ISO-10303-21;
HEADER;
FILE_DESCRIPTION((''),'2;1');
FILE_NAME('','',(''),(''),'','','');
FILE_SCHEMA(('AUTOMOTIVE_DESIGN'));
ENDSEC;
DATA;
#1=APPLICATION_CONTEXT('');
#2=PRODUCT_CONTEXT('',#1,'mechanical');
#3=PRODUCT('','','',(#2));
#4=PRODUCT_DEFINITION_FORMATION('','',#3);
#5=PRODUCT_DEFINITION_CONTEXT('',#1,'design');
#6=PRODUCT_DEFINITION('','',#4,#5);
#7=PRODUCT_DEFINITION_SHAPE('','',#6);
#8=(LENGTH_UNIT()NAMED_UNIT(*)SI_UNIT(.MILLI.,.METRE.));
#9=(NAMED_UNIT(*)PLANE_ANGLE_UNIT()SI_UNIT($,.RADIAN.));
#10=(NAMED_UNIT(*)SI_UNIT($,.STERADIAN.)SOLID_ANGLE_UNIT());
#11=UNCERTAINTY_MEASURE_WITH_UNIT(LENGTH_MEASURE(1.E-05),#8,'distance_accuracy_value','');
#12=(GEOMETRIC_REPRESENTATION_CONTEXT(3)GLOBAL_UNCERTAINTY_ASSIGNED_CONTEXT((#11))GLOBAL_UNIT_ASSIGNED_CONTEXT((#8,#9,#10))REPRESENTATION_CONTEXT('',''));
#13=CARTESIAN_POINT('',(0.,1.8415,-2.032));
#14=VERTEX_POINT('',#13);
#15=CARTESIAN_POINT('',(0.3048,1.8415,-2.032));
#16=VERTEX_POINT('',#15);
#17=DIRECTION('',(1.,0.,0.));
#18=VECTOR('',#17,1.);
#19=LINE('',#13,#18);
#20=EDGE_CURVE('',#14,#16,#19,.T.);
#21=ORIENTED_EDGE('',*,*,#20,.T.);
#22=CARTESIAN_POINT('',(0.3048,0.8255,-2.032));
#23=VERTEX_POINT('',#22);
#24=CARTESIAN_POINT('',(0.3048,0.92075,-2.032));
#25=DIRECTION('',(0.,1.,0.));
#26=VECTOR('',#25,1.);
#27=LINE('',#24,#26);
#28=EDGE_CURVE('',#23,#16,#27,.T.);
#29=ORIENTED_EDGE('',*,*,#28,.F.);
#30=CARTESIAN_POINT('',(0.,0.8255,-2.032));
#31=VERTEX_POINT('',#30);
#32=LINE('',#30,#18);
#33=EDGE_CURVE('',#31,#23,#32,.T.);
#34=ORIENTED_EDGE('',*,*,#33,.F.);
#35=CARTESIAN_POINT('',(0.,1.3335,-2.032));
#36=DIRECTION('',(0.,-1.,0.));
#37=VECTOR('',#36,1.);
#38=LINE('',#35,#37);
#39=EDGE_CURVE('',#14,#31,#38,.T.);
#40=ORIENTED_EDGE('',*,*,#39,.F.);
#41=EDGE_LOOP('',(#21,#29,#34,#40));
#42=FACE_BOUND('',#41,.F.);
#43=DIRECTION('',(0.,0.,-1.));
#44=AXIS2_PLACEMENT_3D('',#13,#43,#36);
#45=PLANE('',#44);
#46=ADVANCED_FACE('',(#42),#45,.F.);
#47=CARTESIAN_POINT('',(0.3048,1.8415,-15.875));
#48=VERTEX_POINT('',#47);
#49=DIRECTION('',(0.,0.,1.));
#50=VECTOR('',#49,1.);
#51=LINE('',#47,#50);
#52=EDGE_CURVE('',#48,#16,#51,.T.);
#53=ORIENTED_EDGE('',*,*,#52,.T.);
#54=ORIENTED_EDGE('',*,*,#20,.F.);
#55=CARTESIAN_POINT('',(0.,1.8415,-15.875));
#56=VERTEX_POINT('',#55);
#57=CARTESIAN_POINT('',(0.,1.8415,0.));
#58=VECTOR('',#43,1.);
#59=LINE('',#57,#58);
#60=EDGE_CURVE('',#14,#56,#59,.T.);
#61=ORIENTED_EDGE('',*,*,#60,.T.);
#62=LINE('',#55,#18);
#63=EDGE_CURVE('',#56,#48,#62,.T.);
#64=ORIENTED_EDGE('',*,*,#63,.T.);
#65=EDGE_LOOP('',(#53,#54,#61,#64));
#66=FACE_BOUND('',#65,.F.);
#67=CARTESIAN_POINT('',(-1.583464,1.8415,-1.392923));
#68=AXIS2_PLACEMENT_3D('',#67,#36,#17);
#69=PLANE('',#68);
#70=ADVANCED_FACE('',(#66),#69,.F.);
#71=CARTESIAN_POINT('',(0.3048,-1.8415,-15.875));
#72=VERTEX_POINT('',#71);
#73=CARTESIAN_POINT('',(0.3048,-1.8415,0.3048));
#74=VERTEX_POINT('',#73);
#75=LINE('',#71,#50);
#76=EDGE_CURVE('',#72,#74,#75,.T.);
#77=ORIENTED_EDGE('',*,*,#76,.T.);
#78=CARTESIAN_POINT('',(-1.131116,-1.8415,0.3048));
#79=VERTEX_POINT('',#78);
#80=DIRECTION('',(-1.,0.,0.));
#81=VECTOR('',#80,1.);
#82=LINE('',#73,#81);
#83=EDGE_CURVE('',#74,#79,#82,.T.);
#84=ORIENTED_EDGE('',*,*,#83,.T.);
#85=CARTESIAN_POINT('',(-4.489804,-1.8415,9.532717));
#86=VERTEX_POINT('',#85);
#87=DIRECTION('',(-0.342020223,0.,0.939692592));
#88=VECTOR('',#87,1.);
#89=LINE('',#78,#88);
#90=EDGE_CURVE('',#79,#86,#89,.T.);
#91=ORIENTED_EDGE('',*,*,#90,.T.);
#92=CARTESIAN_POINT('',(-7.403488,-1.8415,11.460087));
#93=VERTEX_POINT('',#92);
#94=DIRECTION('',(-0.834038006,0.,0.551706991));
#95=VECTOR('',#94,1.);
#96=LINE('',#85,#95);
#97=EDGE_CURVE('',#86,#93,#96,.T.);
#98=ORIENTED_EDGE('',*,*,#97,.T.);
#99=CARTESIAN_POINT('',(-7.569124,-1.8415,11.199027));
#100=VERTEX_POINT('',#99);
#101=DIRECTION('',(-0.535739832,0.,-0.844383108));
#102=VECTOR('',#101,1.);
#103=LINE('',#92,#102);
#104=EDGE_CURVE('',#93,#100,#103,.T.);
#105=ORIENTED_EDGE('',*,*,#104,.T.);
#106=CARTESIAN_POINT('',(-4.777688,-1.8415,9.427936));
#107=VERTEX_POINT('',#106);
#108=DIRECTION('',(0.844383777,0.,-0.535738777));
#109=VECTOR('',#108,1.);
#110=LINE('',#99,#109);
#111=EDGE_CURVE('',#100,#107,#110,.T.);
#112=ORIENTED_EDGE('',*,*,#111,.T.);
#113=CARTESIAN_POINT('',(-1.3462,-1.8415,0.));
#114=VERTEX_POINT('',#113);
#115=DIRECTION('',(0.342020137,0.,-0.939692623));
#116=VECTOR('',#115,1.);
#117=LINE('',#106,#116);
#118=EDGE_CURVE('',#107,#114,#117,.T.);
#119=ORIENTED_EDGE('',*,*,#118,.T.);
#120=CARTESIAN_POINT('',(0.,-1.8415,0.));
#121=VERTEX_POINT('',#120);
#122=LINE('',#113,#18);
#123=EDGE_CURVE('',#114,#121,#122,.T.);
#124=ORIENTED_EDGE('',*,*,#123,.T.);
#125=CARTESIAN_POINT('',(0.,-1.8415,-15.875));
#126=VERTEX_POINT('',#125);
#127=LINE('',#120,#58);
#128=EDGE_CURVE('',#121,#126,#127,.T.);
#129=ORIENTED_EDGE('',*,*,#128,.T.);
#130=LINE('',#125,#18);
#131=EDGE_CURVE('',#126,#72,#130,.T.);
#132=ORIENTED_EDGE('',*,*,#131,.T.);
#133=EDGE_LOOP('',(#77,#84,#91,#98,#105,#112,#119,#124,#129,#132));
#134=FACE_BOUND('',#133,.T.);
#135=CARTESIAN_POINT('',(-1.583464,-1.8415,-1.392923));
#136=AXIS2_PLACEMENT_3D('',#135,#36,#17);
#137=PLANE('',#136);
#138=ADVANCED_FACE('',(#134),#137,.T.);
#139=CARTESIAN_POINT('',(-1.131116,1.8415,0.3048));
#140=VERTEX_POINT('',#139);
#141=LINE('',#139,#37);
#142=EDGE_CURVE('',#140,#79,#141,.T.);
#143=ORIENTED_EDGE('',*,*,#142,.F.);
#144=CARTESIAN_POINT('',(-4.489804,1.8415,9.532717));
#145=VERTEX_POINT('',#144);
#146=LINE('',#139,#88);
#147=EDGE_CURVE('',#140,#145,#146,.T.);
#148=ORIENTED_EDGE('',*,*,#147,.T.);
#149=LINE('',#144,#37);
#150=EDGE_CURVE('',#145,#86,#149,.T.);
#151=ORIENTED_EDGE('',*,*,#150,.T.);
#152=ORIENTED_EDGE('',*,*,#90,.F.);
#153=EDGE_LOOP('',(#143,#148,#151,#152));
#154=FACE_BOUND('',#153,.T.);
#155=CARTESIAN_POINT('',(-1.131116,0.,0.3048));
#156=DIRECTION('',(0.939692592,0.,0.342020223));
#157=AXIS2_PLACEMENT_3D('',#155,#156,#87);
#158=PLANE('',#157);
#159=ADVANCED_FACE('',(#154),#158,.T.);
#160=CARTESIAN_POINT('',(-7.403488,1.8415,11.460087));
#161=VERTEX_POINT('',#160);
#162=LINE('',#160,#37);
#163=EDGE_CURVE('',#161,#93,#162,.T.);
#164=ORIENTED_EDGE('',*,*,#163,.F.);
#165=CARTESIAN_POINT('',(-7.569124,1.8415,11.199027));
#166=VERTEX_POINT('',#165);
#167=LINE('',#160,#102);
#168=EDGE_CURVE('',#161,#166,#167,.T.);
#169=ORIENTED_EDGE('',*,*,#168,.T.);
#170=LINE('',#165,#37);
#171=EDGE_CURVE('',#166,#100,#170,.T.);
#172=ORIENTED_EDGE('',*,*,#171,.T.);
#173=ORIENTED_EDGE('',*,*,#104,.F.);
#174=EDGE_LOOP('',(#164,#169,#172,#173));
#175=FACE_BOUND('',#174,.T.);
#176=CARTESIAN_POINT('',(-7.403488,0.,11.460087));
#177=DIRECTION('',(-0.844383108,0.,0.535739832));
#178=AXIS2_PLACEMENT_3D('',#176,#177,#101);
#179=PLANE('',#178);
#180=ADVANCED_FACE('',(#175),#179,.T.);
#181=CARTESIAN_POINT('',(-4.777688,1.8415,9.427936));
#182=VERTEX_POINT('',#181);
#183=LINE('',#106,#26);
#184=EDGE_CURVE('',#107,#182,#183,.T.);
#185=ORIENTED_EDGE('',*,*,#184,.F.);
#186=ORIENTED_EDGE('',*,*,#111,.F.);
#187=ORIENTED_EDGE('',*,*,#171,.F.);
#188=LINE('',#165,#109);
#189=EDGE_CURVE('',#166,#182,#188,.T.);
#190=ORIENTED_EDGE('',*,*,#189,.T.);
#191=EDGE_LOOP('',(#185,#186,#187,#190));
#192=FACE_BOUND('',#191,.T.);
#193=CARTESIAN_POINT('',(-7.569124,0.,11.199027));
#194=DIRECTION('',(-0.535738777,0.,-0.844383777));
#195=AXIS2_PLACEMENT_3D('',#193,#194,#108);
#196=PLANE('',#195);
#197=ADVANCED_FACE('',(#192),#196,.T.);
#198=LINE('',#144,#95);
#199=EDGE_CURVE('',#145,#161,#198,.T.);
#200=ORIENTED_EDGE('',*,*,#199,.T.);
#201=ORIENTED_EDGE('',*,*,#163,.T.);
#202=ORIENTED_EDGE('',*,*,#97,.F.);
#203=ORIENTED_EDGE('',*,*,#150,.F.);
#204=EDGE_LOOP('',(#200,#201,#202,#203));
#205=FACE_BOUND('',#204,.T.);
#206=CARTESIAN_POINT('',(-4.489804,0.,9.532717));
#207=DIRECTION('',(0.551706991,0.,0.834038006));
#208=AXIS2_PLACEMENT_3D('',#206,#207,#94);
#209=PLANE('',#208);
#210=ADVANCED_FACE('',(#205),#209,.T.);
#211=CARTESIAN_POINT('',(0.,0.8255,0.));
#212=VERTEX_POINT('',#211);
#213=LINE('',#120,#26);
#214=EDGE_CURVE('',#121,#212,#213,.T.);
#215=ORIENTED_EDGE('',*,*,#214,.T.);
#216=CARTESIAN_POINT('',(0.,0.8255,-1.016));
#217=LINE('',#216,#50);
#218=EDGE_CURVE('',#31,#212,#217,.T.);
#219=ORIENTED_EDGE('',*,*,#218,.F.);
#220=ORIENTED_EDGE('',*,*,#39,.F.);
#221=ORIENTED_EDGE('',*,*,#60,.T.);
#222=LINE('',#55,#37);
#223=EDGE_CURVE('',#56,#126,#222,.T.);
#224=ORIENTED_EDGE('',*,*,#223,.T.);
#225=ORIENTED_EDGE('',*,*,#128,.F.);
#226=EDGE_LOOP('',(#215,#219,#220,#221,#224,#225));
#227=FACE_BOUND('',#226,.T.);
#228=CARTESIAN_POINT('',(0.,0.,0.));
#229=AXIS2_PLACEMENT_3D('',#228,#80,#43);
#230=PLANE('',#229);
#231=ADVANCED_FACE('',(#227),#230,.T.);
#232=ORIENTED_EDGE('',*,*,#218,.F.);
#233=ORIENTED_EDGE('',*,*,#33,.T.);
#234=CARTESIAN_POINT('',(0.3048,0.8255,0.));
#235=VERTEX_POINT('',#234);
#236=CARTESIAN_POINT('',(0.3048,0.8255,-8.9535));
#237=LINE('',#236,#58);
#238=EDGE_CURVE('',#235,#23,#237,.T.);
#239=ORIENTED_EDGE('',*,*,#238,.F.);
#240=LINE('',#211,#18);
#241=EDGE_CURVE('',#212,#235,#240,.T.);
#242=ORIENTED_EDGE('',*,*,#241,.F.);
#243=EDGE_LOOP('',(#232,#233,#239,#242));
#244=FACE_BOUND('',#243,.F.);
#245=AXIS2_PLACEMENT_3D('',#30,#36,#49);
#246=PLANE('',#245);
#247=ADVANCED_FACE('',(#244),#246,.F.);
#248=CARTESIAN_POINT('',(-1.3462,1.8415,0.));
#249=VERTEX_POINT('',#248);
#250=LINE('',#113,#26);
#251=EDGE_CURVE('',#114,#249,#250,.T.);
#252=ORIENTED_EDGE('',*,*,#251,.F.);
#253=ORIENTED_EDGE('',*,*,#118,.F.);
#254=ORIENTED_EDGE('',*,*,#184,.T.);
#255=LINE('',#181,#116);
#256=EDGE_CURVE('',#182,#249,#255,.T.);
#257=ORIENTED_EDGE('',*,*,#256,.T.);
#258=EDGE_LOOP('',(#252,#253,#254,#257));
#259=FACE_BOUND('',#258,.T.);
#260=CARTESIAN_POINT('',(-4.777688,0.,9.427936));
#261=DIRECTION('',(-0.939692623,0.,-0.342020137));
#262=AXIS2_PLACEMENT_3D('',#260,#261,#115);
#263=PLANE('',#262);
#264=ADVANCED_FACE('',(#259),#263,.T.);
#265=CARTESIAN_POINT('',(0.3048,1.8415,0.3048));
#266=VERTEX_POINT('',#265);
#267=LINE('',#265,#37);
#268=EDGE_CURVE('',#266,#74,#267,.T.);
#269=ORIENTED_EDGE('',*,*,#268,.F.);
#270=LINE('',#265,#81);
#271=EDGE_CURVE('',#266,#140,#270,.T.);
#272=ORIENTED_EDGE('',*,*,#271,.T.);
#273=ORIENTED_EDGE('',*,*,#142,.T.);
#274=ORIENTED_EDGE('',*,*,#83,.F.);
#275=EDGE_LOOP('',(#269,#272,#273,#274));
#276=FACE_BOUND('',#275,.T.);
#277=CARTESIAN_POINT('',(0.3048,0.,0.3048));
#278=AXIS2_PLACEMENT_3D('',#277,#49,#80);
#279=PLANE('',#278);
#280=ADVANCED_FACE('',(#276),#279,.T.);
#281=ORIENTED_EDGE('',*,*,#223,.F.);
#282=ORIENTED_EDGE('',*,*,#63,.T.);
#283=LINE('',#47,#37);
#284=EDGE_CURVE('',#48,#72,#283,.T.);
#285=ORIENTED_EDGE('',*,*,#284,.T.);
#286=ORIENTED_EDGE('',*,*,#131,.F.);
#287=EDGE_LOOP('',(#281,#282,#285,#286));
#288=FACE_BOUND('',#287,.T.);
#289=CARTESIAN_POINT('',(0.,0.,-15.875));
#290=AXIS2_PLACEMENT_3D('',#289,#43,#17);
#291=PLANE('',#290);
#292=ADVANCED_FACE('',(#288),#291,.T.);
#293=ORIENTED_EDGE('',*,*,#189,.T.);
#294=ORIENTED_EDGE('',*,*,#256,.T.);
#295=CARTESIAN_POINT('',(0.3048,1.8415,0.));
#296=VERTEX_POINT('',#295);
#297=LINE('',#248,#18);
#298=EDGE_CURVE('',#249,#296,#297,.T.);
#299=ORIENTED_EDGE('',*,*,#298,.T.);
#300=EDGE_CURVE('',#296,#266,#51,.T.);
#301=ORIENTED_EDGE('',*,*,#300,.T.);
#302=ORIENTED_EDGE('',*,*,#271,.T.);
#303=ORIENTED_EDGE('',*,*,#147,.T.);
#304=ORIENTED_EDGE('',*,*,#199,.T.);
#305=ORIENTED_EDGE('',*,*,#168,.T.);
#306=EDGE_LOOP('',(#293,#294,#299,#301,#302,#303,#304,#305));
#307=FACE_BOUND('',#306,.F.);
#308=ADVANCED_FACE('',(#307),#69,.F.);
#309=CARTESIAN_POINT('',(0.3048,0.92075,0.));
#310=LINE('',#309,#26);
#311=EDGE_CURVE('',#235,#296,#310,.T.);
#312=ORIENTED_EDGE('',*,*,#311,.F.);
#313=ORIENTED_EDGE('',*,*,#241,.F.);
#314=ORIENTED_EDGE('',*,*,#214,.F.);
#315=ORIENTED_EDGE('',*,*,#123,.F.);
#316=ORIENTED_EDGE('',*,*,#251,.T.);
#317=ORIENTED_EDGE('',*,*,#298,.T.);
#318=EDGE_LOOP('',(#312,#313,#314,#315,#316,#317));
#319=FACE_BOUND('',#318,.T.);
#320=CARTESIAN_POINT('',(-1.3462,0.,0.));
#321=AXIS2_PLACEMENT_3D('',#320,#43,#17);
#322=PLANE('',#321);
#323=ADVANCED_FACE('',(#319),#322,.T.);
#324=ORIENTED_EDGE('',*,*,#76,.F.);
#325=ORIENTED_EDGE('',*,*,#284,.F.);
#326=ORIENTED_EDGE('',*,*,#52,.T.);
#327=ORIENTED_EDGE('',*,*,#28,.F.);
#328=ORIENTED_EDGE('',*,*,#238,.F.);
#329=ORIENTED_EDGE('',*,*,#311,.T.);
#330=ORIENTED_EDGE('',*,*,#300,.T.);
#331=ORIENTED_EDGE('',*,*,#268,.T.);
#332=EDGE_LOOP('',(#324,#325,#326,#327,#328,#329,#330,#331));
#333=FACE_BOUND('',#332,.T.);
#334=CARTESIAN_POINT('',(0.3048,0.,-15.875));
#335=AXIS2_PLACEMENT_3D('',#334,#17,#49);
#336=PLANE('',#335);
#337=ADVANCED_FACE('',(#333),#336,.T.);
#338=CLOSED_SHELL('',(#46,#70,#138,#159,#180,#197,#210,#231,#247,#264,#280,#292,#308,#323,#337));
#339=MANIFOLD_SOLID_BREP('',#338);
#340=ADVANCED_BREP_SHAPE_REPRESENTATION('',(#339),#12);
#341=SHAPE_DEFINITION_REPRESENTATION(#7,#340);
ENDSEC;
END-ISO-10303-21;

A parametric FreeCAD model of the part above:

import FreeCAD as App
import Part
import Sketcher
from FreeCAD import Vector
Q = App.Units.Quantity

doc = App.newDocument("Part")
params = doc.addObject("Spreadsheet::Sheet", "Params")
for row, (alias, value) in enumerate([
    ("sketch1_width", "0.012 in"),
    ("sketch1_width2", "0.053 in"),
    ("sketch1_height", "0.625 in"),
    ("sketch1_height2", "0.637 in"),
    ("sketch1_length", "0.395 in"),
    ("pad1_length", "0.145 in"),
    ("sketch2_width", "0.04 in"),
    ("sketch2_height", "0.08 in"),
    ("pocket1_length", "1 in"),
], start=1):
    params.set(f"A{row}", alias)
    params.set(f"B{row}", "=" + value)
    params.setAlias(f"B{row}", alias)

body = doc.addObject("PartDesign::Body", "Body")

# Sketch on XZ plane
sketch1 = body.newObject("Sketcher::SketchObject", "Sketch")
sketch1.AttachmentSupport = (doc.getObject("XZ_Plane"), [""])
sketch1.MapMode = "FlatFace"
sketch1.addGeometry(Part.LineSegment(Vector(0, 0, 0), Vector(0, -15.88, 0)), False)
sketch1.addGeometry(Part.LineSegment(Vector(0, -15.88, 0), Vector(0.3, -15.88, 0)), False)
sketch1.addGeometry(Part.LineSegment(Vector(0.3, -15.88, 0), Vector(0.3, 0.3, 0)), False)
sketch1.addGeometry(Part.LineSegment(Vector(0.3, 0.3, 0), Vector(-1.13, 0.3, 0)), False)
sketch1.addGeometry(Part.LineSegment(Vector(-1.13, 0.3, 0), Vector(-4.49, 9.53, 0)), False)
sketch1.addGeometry(Part.LineSegment(Vector(-4.49, 9.53, 0), Vector(-7.4, 11.46, 0)), False)
sketch1.addGeometry(Part.LineSegment(Vector(-7.4, 11.46, 0), Vector(-7.57, 11.2, 0)), False)
sketch1.addGeometry(Part.LineSegment(Vector(-7.57, 11.2, 0), Vector(-4.78, 9.43, 0)), False)
sketch1.addGeometry(Part.LineSegment(Vector(-4.78, 9.43, 0), Vector(-1.35, 0, 0)), False)
sketch1.addGeometry(Part.LineSegment(Vector(-1.35, 0, 0), Vector(0, 0, 0)), False)
sketch1.addConstraint(Sketcher.Constraint("Coincident", 0, 2, 1, 1))
sketch1.addConstraint(Sketcher.Constraint("Coincident", 1, 2, 2, 1))
sketch1.addConstraint(Sketcher.Constraint("Coincident", 2, 2, 3, 1))
sketch1.addConstraint(Sketcher.Constraint("Coincident", 3, 2, 4, 1))
sketch1.addConstraint(Sketcher.Constraint("Coincident", 4, 2, 5, 1))
sketch1.addConstraint(Sketcher.Constraint("Coincident", 5, 2, 6, 1))
sketch1.addConstraint(Sketcher.Constraint("Coincident", 6, 2, 7, 1))
sketch1.addConstraint(Sketcher.Constraint("Coincident", 7, 2, 8, 1))
sketch1.addConstraint(Sketcher.Constraint("Coincident", 8, 2, 9, 1))
sketch1.addConstraint(Sketcher.Constraint("Coincident", 9, 2, 0, 1))
sketch1.addConstraint(Sketcher.Constraint("Vertical", 0))
sketch1.addConstraint(Sketcher.Constraint("Horizontal", 1))
sketch1.addConstraint(Sketcher.Constraint("Vertical", 2))
sketch1.addConstraint(Sketcher.Constraint("Horizontal", 3))
sketch1.addConstraint(Sketcher.Constraint("Horizontal", 9))
sketch1.addConstraint(Sketcher.Constraint("Coincident", 9, 2, -1, 1))
sketch1.addConstraint(Sketcher.Constraint("Perpendicular", 6, 7))
sketch1.addConstraint(Sketcher.Constraint("Parallel", 4, 8))
sketch1.addConstraint(Sketcher.Constraint("Angle", 4, Q("110.000005 deg")))
sketch1.addConstraint(Sketcher.Constraint("DistanceX", 1, 1, 1, 2, Q("0.012 in")))
sketch1.addConstraint(Sketcher.Constraint("DistanceX", 9, 1, 9, 2, Q("0.053 in")))
sketch1.addConstraint(Sketcher.Constraint("DistanceY", 0, 2, 0, 1, Q("0.625 in")))
sketch1.addConstraint(Sketcher.Constraint("DistanceY", 2, 1, 2, 2, Q("0.637 in")))
sketch1.addConstraint(Sketcher.Constraint("Distance", 8, Q("0.395 in")))
sketch1.addConstraint(Sketcher.Constraint("DistanceX", 5, 2, 7, 2, Q("2.6258 mm")))
sketch1.addConstraint(Sketcher.Constraint("DistanceX", 3, 2, 3, 1, Q("1.435916 mm")))
sketch1.addConstraint(Sketcher.Constraint("DistanceX", 4, 2, 3, 2, Q("3.358688 mm")))
sketch1.addConstraint(Sketcher.Constraint("DistanceY", 4, 2, 5, 2, Q("1.92737 mm")))
sketch1.addConstraint(Sketcher.Constraint("DistanceY", 6, 2, 5, 2, Q("0.26106 mm")))
sketch1.setExpression("Constraints[19]", "Params.sketch1_width")
sketch1.setExpression("Constraints[20]", "Params.sketch1_width2")
sketch1.setExpression("Constraints[21]", "Params.sketch1_height")
sketch1.setExpression("Constraints[22]", "Params.sketch1_height2")
sketch1.setExpression("Constraints[23]", "Params.sketch1_length")
pad1 = body.newObject("PartDesign::Pad", "Pad")
pad1.Profile = sketch1
pad1.setExpression("Length", "Params.pad1_length")
pad1.Midplane = True

# Sketch on YZ plane
sketch2 = body.newObject("Sketcher::SketchObject", "Sketch001")
sketch2.AttachmentSupport = (doc.getObject("YZ_Plane"), [""])
sketch2.MapMode = "FlatFace"
sketch2.addGeometry(Part.LineSegment(Vector(1.8, 0, 0), Vector(1.8, -2, 0)), False)
sketch2.addGeometry(Part.LineSegment(Vector(1.8, -2, 0), Vector(0.8, -2, 0)), False)
sketch2.addGeometry(Part.LineSegment(Vector(0.8, -2, 0), Vector(0.8, 0, 0)), False)
sketch2.addGeometry(Part.LineSegment(Vector(0.8, 0, 0), Vector(1.8, 0, 0)), False)
sketch2.addConstraint(Sketcher.Constraint("Coincident", 0, 2, 1, 1))
sketch2.addConstraint(Sketcher.Constraint("Coincident", 1, 2, 2, 1))
sketch2.addConstraint(Sketcher.Constraint("Coincident", 2, 2, 3, 1))
sketch2.addConstraint(Sketcher.Constraint("Coincident", 3, 2, 0, 1))
sketch2.addConstraint(Sketcher.Constraint("Vertical", 0))
sketch2.addConstraint(Sketcher.Constraint("Horizontal", 1))
sketch2.addConstraint(Sketcher.Constraint("Vertical", 2))
sketch2.addConstraint(Sketcher.Constraint("Horizontal", 3))
sketch2.addConstraint(Sketcher.Constraint("PointOnObject", 2, 2, -1))
sketch2.addConstraint(Sketcher.Constraint("DistanceX", 1, 2, 1, 1, Q("0.04 in")))
sketch2.addConstraint(Sketcher.Constraint("DistanceY", 0, 2, 0, 1, Q("0.08 in")))
sketch2.addConstraint(Sketcher.Constraint("DistanceX", -1, 1, 0, 2, Q("0.0725 in")))
sketch2.setExpression("Constraints[9]", "Params.sketch2_width")
sketch2.setExpression("Constraints[10]", "Params.sketch2_height")
pocket1 = body.newObject("PartDesign::Pocket", "Pocket")
pocket1.Profile = sketch2
pocket1.setExpression("Length", "Params.pocket1_length")
pocket1.Reversed = True

doc.recompute()
